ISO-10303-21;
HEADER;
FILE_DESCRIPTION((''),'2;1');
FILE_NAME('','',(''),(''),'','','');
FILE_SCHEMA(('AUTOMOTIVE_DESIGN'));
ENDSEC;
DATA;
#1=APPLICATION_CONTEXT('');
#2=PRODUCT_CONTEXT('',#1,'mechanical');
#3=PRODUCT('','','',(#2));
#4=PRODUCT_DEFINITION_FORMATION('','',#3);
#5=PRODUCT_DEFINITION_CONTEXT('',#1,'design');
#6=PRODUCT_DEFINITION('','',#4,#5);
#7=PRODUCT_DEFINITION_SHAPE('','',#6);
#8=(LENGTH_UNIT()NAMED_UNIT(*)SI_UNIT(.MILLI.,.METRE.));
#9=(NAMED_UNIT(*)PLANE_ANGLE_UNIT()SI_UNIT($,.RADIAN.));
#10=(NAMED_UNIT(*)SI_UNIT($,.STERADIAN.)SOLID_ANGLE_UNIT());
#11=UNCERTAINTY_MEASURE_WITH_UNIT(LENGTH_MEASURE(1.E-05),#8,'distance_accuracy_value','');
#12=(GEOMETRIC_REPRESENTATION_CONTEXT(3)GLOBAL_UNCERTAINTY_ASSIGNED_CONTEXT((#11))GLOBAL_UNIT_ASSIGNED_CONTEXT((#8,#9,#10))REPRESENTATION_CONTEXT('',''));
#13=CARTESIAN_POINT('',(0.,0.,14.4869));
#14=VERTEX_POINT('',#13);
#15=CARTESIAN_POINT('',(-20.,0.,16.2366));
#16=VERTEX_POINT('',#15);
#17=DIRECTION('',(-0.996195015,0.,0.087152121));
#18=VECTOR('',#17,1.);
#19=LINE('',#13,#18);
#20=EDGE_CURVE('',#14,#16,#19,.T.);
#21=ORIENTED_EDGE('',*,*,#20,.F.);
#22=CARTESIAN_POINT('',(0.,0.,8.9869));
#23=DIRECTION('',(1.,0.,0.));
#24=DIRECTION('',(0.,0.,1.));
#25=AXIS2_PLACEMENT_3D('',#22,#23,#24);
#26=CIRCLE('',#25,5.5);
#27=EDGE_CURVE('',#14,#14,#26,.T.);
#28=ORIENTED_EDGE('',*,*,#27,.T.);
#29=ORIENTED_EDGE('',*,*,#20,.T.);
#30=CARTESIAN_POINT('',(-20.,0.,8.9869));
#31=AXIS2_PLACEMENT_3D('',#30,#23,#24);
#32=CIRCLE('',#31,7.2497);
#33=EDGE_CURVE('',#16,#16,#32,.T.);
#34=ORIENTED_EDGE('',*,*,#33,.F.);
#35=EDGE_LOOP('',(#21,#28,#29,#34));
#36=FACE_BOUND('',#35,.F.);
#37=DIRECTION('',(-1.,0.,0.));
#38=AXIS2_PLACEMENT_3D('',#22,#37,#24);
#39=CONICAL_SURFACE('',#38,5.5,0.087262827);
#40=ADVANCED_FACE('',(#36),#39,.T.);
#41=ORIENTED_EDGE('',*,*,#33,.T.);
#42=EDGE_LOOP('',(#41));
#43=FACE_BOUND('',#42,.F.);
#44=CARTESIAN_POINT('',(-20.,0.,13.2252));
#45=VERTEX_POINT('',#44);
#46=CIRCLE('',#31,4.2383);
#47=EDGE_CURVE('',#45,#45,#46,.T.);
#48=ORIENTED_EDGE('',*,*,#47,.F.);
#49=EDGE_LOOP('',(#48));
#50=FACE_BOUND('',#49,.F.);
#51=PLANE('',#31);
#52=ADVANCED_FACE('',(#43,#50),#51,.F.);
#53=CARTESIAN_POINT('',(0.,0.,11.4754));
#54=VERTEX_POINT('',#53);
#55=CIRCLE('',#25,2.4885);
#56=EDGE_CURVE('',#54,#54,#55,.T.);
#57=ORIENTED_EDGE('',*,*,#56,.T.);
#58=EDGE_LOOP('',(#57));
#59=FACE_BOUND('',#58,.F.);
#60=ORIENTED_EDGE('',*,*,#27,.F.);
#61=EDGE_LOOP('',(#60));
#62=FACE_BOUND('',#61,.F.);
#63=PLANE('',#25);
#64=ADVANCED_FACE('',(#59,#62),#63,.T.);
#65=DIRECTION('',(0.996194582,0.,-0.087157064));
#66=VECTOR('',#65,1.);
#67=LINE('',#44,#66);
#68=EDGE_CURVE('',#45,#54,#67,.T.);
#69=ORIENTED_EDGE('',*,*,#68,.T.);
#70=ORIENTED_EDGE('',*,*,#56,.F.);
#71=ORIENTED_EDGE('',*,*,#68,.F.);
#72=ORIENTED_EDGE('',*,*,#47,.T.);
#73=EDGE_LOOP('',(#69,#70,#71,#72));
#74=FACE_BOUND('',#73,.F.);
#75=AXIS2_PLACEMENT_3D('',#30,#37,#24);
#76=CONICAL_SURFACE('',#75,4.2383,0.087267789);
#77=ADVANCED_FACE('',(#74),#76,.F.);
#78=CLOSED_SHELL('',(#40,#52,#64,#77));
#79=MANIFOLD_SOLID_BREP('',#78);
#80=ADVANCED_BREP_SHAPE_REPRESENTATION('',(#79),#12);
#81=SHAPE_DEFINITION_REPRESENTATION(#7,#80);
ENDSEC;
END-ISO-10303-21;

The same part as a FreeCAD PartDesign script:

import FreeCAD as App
import Part
import Sketcher
from FreeCAD import Vector
Q = App.Units.Quantity


def add_polygon(sketch, points):
    """Adds a closed chain of lines whose ends are joined by coincident constraints."""
    first, n = sketch.GeometryCount, len(points)
    for a, b in zip(points, points[1:] + points[:1]):
        sketch.addGeometry(Part.LineSegment(App.Vector(*a, 0), App.Vector(*b, 0)), False)
    for i in range(n):
        sketch.addConstraint(Sketcher.Constraint("Coincident", first + i, 2, first + (i + 1) % n, 1))

doc = App.newDocument("Part")
body = doc.addObject("PartDesign::Body", "Body")

sketch1 = body.newObject("Sketcher::SketchObject", "Sketch")
sketch1.AttachmentSupport = (doc.getObject("XZ_Plane"), [""])
sketch1.MapMode = "FlatFace"
add_polygon(sketch1, [(-20, 16.2366), (0, 14.4869), (0, 11.4754), (-20, 13.2252)])
sketch1.addGeometry(Part.LineSegment(Vector(-20, 8.9869, 0), Vector(0, 8.9869, 0)), True)
sketch1.addConstraint(Sketcher.Constraint("Vertical", 1))
sketch1.addConstraint(Sketcher.Constraint("Vertical", 3))
sketch1.addConstraint(Sketcher.Constraint("Horizontal", 4))
sketch1.addConstraint(Sketcher.Constraint("PointOnObject", 0, 2, -2))
sketch1.addConstraint(Sketcher.Constraint("PointOnObject", 4, 2, -2))
sketch1.addConstraint(Sketcher.Constraint("Parallel", 0, 2))
sketch1.addConstraint(Sketcher.Constraint("Vertical", 3, 2, 4, 1))
sketch1.addConstraint(Sketcher.Constraint("DistanceX", 4, 1, 4, 2, 20.0))
sketch1.addConstraint(Sketcher.Constraint("DistanceY", 4, 1, 0, 2, 5.5))
sketch1.addConstraint(Sketcher.Constraint("Angle", 0, Q("-4.9998 deg")))
sketch1.addConstraint(Sketcher.Constraint("DistanceY", 1, 2, 1, 1, 3.0115))
sketch1.addConstraint(Sketcher.Constraint("DistanceY", -1, 1, 0, 2, 14.487))
revolution = body.newObject("PartDesign::Revolution", "Revolution")
revolution.Profile = sketch1
revolution.ReferenceAxis = (sketch1, ["Axis0"])
revolution.Angle = 360

doc.recompute()
